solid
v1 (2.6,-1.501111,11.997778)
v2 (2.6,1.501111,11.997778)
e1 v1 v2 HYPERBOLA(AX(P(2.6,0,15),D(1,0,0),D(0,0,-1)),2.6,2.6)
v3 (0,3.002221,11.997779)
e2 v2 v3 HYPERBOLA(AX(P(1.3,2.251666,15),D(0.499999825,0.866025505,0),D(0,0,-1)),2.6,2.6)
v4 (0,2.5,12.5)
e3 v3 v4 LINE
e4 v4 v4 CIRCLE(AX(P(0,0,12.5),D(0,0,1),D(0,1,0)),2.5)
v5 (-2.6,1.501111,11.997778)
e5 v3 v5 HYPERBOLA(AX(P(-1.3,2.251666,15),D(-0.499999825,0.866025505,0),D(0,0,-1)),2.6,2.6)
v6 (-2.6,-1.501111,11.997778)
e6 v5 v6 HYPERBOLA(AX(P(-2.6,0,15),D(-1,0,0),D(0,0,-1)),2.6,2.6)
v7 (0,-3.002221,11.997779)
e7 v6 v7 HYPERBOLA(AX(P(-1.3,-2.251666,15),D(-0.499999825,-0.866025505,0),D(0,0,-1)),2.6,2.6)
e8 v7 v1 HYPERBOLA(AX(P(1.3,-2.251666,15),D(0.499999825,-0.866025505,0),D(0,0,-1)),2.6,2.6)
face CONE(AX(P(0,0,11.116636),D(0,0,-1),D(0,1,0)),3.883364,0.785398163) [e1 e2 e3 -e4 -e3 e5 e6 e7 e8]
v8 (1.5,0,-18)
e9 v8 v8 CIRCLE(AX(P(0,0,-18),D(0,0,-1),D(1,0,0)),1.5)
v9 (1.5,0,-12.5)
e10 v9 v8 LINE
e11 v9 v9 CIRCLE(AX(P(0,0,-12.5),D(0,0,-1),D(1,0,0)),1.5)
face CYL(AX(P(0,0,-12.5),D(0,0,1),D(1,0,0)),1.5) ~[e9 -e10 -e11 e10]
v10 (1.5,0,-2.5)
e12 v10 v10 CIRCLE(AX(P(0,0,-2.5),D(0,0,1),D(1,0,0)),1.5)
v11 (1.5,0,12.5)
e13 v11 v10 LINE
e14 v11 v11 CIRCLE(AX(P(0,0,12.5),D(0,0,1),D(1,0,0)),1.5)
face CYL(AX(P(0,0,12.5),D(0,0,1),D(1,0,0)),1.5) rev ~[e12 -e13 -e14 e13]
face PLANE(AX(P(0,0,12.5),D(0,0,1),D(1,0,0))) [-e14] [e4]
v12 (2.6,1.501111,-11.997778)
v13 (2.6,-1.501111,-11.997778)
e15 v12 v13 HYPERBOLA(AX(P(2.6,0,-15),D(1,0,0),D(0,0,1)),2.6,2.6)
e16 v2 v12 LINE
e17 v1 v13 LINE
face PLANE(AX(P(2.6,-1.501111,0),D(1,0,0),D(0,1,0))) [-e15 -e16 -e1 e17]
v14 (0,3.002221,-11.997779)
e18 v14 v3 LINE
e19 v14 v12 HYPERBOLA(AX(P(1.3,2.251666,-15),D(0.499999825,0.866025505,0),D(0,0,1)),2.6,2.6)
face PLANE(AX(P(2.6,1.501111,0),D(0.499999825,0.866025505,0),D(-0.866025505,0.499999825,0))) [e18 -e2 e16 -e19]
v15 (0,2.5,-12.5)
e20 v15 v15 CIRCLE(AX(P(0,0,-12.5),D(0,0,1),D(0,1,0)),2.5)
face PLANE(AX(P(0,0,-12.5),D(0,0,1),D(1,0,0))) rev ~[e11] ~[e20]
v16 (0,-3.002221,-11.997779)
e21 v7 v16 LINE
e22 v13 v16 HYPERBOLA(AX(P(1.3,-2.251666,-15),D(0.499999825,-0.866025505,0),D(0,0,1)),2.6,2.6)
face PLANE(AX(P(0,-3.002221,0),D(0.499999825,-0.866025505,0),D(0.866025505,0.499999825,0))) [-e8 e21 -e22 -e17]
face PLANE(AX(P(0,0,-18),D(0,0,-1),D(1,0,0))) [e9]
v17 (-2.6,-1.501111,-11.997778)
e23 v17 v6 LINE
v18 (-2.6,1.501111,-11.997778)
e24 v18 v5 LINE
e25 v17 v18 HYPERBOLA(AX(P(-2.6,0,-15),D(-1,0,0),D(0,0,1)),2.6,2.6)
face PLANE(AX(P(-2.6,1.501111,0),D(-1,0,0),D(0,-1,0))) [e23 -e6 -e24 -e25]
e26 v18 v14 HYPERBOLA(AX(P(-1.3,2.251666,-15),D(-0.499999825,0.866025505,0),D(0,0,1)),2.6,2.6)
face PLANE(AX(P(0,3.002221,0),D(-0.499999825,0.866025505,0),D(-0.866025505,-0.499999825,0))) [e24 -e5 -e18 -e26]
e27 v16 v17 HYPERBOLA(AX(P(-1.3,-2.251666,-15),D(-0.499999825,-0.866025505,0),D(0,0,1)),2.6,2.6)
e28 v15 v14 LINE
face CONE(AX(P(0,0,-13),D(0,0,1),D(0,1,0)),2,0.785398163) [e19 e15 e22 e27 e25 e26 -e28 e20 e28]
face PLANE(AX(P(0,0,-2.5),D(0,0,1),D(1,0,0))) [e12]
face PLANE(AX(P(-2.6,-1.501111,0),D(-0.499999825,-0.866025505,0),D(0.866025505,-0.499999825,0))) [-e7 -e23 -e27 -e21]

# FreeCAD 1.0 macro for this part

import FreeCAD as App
import Part
import Sketcher
Q = App.Units.Quantity

doc = App.newDocument("Part")
body = doc.addObject("PartDesign::Body", "Body")

sketch1 = doc.addObject("Sketcher::SketchObject", "Sketch")
body.addObject(sketch1)
sketch1.AttachmentSupport = (doc.YZ_Plane, [""])
sketch1.MapMode = "FlatFace"
sketch1.addGeometry(Part.LineSegment(App.Vector(5, 13, 0), App.Vector(2, 13, 0)), False)
sketch1.addGeometry(Part.LineSegment(App.Vector(2, 13, 0), App.Vector(3.883364, 11.116636, 0)), False)
sketch1.addGeometry(Part.LineSegment(App.Vector(3.883364, 11.116636, 0), App.Vector(3.883364, -11.116636, 0)), False)
sketch1.addGeometry(Part.LineSegment(App.Vector(3.883364, -11.116636, 0), App.Vector(2, -13, 0)), False)
sketch1.addGeometry(Part.LineSegment(App.Vector(2, -13, 0), App.Vector(5, -13, 0)), False)
sketch1.addGeometry(Part.LineSegment(App.Vector(5, -13, 0), App.Vector(5, 13, 0)), False)
sketch1.addConstraint(Sketcher.Constraint("Coincident", 0, 2, 1, 1))
sketch1.addConstraint(Sketcher.Constraint("Coincident", 1, 2, 2, 1))
sketch1.addConstraint(Sketcher.Constraint("Coincident", 2, 2, 3, 1))
sketch1.addConstraint(Sketcher.Constraint("Coincident", 3, 2, 4, 1))
sketch1.addConstraint(Sketcher.Constraint("Coincident", 4, 2, 5, 1))
sketch1.addConstraint(Sketcher.Constraint("Coincident", 5, 2, 0, 1))
sketch1.addConstraint(Sketcher.Constraint("Horizontal", 0))
sketch1.addConstraint(Sketcher.Constraint("Vertical", 2))
sketch1.addConstraint(Sketcher.Constraint("Horizontal", 4))
sketch1.addConstraint(Sketcher.Constraint("Vertical", 5))
sketch1.addConstraint(Sketcher.Constraint("Symmetric", 0, 2, 3, 2, -1))
sketch1.addConstraint(Sketcher.Constraint("Perpendicular", 1, 3))
sketch1.addConstraint(Sketcher.Constraint("Equal", 1, 3))
sketch1.addConstraint(Sketcher.Constraint("DistanceX", 0, 2, 0, 1, Q("3 mm")))
sketch1.addConstraint(Sketcher.Constraint("DistanceY", 5, 1, 5, 2, Q("26 mm")))
sketch1.addConstraint(Sketcher.Constraint("DistanceX", -1, 1, 0, 2, Q("2 mm")))
sketch1.addConstraint(Sketcher.Constraint("DistanceY", 2, 2, 2, 1, Q("22.233272 mm")))
revolution = doc.addObject("PartDesign::Revolution", "Revolution")
body.addObject(revolution)
revolution.Profile = sketch1
revolution.ReferenceAxis = (sketch1, ["V_Axis"])
revolution.Angle = 360
body2 = doc.addObject("PartDesign::Body", "Body001")

sketch2 = doc.addObject("Sketcher::SketchObject", "Sketch001")
body2.addObject(sketch2)
sketch2.AttachmentSupport = (doc.getObject("XY_Plane001"), [""])
sketch2.MapMode = "FlatFace"
sketch2.addGeometry(Part.LineSegment(App.Vector(2.6, 1.501111, 0), App.Vector(0, 3.002221, 0)), False)
sketch2.addGeometry(Part.LineSegment(App.Vector(0, 3.002221, 0), App.Vector(-2.6, 1.501111, 0)), False)
sketch2.addGeometry(Part.LineSegment(App.Vector(-2.6, 1.501111, 0), App.Vector(-2.6, -1.501111, 0)), False)
sketch2.addGeometry(Part.LineSegment(App.Vector(-2.6, -1.501111, 0), App.Vector(0, -3.002221, 0)), False)
sketch2.addGeometry(Part.LineSegment(App.Vector(0, -3.002221, 0), App.Vector(2.6, -1.501111, 0)), False)
sketch2.addGeometry(Part.LineSegment(App.Vector(2.6, -1.501111, 0), App.Vector(2.6, 1.501111, 0)), False)
sketch2.addConstraint(Sketcher.Constraint("Coincident", 0, 2, 1, 1))
sketch2.addConstraint(Sketcher.Constraint("Coincident", 1, 2, 2, 1))
sketch2.addConstraint(Sketcher.Constraint("Coincident", 2, 2, 3, 1))
sketch2.addConstraint(Sketcher.Constraint("Coincident", 3, 2, 4, 1))
sketch2.addConstraint(Sketcher.Constraint("Coincident", 4, 2, 5, 1))
sketch2.addConstraint(Sketcher.Constraint("Coincident", 5, 2, 0, 1))
sketch2.addConstraint(Sketcher.Constraint("Vertical", 2))
sketch2.addConstraint(Sketcher.Constraint("Vertical", 5))
sketch2.addConstraint(Sketcher.Constraint("Symmetric", 0, 2, 3, 2, -1, 1))
sketch2.addConstraint(Sketcher.Constraint("Symmetric", 1, 2, 4, 2, -1, 1))
sketch2.addConstraint(Sketcher.Constraint("PointOnObject", 0, 2, -2))
sketch2.addConstraint(Sketcher.Constraint("Parallel", 0, 3))
sketch2.addConstraint(Sketcher.Constraint("Horizontal", 2, 2, 4, 2))
sketch2.addConstraint(Sketcher.Constraint("Angle", 0, Q("150.000012 deg")))
sketch2.addConstraint(Sketcher.Constraint("DistanceX", 1, 2, -1, 1, Q("2.6 mm")))
sketch2.addConstraint(Sketcher.Constraint("DistanceY", 2, 2, 2, 1, Q("3.002222 mm")))
pad1 = doc.addObject("PartDesign::Pad", "Pad")
body2.addObject(pad1)
pad1.Profile = sketch2
pad1.Length = 25
pad1.Midplane = True

sketch3 = doc.addObject("Sketcher::SketchObject", "Sketch002")
body2.addObject(sketch3)
sketch3.AttachmentSupport = (doc.getObject("XY_Plane001"), [""])
sketch3.MapMode = "FlatFace"
sketch3.AttachmentOffset = App.Placement(App.Vector(0, 0, 12.5), App.Rotation())
sketch3.addGeometry(Part.Circle(App.Vector(0, 0, 0), App.Vector(0, 0, 1), 1.5), False)
sketch3.addConstraint(Sketcher.Constraint("Coincident", 0, 3, -1, 1))
sketch3.addConstraint(Sketcher.Constraint("Diameter", 0, Q("3 mm")))
pocket1 = doc.addObject("PartDesign::Pocket", "Pocket")
body2.addObject(pocket1)
pocket1.Profile = sketch3
pocket1.Length = 15

sketch4 = doc.addObject("Sketcher::SketchObject", "Sketch003")
body2.addObject(sketch4)
sketch4.AttachmentSupport = (doc.getObject("XY_Plane001"), [""])
sketch4.MapMode = "FlatFace"
sketch4.AttachmentOffset = App.Placement(App.Vector(0, 0, -12.5), App.Rotation())
sketch4.addGeometry(Part.Circle(App.Vector(0, 0, 0), App.Vector(0, 0, 1), 1.5), False)
sketch4.addConstraint(Sketcher.Constraint("Coincident", 0, 3, -1, 1))
sketch4.addConstraint(Sketcher.Constraint("Diameter", 0, Q("3 mm")))
pad2 = doc.addObject("PartDesign::Pad", "Pad001")
body2.addObject(pad2)
pad2.Profile = sketch4
pad2.Length = 5.5
pad2.Reversed = True
doc.recompute()

boolean = doc.addObject("PartDesign::Boolean", "Boolean")
body2.addObject(boolean)
boolean.Type = "Cut"
boolean.addObjects([body])

doc.recompute()
